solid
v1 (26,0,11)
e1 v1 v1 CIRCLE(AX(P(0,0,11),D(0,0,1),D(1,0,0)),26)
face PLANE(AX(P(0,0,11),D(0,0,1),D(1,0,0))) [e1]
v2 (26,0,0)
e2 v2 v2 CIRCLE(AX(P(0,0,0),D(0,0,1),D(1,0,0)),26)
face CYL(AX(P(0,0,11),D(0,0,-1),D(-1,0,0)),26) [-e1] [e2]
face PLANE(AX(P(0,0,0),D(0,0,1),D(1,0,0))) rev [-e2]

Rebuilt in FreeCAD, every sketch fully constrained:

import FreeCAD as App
import Part
import Sketcher
from FreeCAD import Vector
Q = App.Units.Quantity

doc = App.newDocument("Part")
body = doc.addObject("PartDesign::Body", "Body")

sketch1 = body.newObject("Sketcher::SketchObject", "Sketch")
sketch1.AttachmentSupport = (doc.getObject("XY_Plane"), [""])
sketch1.MapMode = "FlatFace"
sketch1.addGeometry(Part.Circle(Vector(0, 0, 0), Vector(0, 0, 1), 26), False)
sketch1.addConstraint([
    Sketcher.Constraint("Coincident", 0, 3, -1, 1),
    Sketcher.Constraint("Diameter", 0, Q("52 mm")),
])
pad1 = body.newObject("PartDesign::Pad", "Pad")
pad1.Profile = sketch1
pad1.Length = 11

doc.recompute()
